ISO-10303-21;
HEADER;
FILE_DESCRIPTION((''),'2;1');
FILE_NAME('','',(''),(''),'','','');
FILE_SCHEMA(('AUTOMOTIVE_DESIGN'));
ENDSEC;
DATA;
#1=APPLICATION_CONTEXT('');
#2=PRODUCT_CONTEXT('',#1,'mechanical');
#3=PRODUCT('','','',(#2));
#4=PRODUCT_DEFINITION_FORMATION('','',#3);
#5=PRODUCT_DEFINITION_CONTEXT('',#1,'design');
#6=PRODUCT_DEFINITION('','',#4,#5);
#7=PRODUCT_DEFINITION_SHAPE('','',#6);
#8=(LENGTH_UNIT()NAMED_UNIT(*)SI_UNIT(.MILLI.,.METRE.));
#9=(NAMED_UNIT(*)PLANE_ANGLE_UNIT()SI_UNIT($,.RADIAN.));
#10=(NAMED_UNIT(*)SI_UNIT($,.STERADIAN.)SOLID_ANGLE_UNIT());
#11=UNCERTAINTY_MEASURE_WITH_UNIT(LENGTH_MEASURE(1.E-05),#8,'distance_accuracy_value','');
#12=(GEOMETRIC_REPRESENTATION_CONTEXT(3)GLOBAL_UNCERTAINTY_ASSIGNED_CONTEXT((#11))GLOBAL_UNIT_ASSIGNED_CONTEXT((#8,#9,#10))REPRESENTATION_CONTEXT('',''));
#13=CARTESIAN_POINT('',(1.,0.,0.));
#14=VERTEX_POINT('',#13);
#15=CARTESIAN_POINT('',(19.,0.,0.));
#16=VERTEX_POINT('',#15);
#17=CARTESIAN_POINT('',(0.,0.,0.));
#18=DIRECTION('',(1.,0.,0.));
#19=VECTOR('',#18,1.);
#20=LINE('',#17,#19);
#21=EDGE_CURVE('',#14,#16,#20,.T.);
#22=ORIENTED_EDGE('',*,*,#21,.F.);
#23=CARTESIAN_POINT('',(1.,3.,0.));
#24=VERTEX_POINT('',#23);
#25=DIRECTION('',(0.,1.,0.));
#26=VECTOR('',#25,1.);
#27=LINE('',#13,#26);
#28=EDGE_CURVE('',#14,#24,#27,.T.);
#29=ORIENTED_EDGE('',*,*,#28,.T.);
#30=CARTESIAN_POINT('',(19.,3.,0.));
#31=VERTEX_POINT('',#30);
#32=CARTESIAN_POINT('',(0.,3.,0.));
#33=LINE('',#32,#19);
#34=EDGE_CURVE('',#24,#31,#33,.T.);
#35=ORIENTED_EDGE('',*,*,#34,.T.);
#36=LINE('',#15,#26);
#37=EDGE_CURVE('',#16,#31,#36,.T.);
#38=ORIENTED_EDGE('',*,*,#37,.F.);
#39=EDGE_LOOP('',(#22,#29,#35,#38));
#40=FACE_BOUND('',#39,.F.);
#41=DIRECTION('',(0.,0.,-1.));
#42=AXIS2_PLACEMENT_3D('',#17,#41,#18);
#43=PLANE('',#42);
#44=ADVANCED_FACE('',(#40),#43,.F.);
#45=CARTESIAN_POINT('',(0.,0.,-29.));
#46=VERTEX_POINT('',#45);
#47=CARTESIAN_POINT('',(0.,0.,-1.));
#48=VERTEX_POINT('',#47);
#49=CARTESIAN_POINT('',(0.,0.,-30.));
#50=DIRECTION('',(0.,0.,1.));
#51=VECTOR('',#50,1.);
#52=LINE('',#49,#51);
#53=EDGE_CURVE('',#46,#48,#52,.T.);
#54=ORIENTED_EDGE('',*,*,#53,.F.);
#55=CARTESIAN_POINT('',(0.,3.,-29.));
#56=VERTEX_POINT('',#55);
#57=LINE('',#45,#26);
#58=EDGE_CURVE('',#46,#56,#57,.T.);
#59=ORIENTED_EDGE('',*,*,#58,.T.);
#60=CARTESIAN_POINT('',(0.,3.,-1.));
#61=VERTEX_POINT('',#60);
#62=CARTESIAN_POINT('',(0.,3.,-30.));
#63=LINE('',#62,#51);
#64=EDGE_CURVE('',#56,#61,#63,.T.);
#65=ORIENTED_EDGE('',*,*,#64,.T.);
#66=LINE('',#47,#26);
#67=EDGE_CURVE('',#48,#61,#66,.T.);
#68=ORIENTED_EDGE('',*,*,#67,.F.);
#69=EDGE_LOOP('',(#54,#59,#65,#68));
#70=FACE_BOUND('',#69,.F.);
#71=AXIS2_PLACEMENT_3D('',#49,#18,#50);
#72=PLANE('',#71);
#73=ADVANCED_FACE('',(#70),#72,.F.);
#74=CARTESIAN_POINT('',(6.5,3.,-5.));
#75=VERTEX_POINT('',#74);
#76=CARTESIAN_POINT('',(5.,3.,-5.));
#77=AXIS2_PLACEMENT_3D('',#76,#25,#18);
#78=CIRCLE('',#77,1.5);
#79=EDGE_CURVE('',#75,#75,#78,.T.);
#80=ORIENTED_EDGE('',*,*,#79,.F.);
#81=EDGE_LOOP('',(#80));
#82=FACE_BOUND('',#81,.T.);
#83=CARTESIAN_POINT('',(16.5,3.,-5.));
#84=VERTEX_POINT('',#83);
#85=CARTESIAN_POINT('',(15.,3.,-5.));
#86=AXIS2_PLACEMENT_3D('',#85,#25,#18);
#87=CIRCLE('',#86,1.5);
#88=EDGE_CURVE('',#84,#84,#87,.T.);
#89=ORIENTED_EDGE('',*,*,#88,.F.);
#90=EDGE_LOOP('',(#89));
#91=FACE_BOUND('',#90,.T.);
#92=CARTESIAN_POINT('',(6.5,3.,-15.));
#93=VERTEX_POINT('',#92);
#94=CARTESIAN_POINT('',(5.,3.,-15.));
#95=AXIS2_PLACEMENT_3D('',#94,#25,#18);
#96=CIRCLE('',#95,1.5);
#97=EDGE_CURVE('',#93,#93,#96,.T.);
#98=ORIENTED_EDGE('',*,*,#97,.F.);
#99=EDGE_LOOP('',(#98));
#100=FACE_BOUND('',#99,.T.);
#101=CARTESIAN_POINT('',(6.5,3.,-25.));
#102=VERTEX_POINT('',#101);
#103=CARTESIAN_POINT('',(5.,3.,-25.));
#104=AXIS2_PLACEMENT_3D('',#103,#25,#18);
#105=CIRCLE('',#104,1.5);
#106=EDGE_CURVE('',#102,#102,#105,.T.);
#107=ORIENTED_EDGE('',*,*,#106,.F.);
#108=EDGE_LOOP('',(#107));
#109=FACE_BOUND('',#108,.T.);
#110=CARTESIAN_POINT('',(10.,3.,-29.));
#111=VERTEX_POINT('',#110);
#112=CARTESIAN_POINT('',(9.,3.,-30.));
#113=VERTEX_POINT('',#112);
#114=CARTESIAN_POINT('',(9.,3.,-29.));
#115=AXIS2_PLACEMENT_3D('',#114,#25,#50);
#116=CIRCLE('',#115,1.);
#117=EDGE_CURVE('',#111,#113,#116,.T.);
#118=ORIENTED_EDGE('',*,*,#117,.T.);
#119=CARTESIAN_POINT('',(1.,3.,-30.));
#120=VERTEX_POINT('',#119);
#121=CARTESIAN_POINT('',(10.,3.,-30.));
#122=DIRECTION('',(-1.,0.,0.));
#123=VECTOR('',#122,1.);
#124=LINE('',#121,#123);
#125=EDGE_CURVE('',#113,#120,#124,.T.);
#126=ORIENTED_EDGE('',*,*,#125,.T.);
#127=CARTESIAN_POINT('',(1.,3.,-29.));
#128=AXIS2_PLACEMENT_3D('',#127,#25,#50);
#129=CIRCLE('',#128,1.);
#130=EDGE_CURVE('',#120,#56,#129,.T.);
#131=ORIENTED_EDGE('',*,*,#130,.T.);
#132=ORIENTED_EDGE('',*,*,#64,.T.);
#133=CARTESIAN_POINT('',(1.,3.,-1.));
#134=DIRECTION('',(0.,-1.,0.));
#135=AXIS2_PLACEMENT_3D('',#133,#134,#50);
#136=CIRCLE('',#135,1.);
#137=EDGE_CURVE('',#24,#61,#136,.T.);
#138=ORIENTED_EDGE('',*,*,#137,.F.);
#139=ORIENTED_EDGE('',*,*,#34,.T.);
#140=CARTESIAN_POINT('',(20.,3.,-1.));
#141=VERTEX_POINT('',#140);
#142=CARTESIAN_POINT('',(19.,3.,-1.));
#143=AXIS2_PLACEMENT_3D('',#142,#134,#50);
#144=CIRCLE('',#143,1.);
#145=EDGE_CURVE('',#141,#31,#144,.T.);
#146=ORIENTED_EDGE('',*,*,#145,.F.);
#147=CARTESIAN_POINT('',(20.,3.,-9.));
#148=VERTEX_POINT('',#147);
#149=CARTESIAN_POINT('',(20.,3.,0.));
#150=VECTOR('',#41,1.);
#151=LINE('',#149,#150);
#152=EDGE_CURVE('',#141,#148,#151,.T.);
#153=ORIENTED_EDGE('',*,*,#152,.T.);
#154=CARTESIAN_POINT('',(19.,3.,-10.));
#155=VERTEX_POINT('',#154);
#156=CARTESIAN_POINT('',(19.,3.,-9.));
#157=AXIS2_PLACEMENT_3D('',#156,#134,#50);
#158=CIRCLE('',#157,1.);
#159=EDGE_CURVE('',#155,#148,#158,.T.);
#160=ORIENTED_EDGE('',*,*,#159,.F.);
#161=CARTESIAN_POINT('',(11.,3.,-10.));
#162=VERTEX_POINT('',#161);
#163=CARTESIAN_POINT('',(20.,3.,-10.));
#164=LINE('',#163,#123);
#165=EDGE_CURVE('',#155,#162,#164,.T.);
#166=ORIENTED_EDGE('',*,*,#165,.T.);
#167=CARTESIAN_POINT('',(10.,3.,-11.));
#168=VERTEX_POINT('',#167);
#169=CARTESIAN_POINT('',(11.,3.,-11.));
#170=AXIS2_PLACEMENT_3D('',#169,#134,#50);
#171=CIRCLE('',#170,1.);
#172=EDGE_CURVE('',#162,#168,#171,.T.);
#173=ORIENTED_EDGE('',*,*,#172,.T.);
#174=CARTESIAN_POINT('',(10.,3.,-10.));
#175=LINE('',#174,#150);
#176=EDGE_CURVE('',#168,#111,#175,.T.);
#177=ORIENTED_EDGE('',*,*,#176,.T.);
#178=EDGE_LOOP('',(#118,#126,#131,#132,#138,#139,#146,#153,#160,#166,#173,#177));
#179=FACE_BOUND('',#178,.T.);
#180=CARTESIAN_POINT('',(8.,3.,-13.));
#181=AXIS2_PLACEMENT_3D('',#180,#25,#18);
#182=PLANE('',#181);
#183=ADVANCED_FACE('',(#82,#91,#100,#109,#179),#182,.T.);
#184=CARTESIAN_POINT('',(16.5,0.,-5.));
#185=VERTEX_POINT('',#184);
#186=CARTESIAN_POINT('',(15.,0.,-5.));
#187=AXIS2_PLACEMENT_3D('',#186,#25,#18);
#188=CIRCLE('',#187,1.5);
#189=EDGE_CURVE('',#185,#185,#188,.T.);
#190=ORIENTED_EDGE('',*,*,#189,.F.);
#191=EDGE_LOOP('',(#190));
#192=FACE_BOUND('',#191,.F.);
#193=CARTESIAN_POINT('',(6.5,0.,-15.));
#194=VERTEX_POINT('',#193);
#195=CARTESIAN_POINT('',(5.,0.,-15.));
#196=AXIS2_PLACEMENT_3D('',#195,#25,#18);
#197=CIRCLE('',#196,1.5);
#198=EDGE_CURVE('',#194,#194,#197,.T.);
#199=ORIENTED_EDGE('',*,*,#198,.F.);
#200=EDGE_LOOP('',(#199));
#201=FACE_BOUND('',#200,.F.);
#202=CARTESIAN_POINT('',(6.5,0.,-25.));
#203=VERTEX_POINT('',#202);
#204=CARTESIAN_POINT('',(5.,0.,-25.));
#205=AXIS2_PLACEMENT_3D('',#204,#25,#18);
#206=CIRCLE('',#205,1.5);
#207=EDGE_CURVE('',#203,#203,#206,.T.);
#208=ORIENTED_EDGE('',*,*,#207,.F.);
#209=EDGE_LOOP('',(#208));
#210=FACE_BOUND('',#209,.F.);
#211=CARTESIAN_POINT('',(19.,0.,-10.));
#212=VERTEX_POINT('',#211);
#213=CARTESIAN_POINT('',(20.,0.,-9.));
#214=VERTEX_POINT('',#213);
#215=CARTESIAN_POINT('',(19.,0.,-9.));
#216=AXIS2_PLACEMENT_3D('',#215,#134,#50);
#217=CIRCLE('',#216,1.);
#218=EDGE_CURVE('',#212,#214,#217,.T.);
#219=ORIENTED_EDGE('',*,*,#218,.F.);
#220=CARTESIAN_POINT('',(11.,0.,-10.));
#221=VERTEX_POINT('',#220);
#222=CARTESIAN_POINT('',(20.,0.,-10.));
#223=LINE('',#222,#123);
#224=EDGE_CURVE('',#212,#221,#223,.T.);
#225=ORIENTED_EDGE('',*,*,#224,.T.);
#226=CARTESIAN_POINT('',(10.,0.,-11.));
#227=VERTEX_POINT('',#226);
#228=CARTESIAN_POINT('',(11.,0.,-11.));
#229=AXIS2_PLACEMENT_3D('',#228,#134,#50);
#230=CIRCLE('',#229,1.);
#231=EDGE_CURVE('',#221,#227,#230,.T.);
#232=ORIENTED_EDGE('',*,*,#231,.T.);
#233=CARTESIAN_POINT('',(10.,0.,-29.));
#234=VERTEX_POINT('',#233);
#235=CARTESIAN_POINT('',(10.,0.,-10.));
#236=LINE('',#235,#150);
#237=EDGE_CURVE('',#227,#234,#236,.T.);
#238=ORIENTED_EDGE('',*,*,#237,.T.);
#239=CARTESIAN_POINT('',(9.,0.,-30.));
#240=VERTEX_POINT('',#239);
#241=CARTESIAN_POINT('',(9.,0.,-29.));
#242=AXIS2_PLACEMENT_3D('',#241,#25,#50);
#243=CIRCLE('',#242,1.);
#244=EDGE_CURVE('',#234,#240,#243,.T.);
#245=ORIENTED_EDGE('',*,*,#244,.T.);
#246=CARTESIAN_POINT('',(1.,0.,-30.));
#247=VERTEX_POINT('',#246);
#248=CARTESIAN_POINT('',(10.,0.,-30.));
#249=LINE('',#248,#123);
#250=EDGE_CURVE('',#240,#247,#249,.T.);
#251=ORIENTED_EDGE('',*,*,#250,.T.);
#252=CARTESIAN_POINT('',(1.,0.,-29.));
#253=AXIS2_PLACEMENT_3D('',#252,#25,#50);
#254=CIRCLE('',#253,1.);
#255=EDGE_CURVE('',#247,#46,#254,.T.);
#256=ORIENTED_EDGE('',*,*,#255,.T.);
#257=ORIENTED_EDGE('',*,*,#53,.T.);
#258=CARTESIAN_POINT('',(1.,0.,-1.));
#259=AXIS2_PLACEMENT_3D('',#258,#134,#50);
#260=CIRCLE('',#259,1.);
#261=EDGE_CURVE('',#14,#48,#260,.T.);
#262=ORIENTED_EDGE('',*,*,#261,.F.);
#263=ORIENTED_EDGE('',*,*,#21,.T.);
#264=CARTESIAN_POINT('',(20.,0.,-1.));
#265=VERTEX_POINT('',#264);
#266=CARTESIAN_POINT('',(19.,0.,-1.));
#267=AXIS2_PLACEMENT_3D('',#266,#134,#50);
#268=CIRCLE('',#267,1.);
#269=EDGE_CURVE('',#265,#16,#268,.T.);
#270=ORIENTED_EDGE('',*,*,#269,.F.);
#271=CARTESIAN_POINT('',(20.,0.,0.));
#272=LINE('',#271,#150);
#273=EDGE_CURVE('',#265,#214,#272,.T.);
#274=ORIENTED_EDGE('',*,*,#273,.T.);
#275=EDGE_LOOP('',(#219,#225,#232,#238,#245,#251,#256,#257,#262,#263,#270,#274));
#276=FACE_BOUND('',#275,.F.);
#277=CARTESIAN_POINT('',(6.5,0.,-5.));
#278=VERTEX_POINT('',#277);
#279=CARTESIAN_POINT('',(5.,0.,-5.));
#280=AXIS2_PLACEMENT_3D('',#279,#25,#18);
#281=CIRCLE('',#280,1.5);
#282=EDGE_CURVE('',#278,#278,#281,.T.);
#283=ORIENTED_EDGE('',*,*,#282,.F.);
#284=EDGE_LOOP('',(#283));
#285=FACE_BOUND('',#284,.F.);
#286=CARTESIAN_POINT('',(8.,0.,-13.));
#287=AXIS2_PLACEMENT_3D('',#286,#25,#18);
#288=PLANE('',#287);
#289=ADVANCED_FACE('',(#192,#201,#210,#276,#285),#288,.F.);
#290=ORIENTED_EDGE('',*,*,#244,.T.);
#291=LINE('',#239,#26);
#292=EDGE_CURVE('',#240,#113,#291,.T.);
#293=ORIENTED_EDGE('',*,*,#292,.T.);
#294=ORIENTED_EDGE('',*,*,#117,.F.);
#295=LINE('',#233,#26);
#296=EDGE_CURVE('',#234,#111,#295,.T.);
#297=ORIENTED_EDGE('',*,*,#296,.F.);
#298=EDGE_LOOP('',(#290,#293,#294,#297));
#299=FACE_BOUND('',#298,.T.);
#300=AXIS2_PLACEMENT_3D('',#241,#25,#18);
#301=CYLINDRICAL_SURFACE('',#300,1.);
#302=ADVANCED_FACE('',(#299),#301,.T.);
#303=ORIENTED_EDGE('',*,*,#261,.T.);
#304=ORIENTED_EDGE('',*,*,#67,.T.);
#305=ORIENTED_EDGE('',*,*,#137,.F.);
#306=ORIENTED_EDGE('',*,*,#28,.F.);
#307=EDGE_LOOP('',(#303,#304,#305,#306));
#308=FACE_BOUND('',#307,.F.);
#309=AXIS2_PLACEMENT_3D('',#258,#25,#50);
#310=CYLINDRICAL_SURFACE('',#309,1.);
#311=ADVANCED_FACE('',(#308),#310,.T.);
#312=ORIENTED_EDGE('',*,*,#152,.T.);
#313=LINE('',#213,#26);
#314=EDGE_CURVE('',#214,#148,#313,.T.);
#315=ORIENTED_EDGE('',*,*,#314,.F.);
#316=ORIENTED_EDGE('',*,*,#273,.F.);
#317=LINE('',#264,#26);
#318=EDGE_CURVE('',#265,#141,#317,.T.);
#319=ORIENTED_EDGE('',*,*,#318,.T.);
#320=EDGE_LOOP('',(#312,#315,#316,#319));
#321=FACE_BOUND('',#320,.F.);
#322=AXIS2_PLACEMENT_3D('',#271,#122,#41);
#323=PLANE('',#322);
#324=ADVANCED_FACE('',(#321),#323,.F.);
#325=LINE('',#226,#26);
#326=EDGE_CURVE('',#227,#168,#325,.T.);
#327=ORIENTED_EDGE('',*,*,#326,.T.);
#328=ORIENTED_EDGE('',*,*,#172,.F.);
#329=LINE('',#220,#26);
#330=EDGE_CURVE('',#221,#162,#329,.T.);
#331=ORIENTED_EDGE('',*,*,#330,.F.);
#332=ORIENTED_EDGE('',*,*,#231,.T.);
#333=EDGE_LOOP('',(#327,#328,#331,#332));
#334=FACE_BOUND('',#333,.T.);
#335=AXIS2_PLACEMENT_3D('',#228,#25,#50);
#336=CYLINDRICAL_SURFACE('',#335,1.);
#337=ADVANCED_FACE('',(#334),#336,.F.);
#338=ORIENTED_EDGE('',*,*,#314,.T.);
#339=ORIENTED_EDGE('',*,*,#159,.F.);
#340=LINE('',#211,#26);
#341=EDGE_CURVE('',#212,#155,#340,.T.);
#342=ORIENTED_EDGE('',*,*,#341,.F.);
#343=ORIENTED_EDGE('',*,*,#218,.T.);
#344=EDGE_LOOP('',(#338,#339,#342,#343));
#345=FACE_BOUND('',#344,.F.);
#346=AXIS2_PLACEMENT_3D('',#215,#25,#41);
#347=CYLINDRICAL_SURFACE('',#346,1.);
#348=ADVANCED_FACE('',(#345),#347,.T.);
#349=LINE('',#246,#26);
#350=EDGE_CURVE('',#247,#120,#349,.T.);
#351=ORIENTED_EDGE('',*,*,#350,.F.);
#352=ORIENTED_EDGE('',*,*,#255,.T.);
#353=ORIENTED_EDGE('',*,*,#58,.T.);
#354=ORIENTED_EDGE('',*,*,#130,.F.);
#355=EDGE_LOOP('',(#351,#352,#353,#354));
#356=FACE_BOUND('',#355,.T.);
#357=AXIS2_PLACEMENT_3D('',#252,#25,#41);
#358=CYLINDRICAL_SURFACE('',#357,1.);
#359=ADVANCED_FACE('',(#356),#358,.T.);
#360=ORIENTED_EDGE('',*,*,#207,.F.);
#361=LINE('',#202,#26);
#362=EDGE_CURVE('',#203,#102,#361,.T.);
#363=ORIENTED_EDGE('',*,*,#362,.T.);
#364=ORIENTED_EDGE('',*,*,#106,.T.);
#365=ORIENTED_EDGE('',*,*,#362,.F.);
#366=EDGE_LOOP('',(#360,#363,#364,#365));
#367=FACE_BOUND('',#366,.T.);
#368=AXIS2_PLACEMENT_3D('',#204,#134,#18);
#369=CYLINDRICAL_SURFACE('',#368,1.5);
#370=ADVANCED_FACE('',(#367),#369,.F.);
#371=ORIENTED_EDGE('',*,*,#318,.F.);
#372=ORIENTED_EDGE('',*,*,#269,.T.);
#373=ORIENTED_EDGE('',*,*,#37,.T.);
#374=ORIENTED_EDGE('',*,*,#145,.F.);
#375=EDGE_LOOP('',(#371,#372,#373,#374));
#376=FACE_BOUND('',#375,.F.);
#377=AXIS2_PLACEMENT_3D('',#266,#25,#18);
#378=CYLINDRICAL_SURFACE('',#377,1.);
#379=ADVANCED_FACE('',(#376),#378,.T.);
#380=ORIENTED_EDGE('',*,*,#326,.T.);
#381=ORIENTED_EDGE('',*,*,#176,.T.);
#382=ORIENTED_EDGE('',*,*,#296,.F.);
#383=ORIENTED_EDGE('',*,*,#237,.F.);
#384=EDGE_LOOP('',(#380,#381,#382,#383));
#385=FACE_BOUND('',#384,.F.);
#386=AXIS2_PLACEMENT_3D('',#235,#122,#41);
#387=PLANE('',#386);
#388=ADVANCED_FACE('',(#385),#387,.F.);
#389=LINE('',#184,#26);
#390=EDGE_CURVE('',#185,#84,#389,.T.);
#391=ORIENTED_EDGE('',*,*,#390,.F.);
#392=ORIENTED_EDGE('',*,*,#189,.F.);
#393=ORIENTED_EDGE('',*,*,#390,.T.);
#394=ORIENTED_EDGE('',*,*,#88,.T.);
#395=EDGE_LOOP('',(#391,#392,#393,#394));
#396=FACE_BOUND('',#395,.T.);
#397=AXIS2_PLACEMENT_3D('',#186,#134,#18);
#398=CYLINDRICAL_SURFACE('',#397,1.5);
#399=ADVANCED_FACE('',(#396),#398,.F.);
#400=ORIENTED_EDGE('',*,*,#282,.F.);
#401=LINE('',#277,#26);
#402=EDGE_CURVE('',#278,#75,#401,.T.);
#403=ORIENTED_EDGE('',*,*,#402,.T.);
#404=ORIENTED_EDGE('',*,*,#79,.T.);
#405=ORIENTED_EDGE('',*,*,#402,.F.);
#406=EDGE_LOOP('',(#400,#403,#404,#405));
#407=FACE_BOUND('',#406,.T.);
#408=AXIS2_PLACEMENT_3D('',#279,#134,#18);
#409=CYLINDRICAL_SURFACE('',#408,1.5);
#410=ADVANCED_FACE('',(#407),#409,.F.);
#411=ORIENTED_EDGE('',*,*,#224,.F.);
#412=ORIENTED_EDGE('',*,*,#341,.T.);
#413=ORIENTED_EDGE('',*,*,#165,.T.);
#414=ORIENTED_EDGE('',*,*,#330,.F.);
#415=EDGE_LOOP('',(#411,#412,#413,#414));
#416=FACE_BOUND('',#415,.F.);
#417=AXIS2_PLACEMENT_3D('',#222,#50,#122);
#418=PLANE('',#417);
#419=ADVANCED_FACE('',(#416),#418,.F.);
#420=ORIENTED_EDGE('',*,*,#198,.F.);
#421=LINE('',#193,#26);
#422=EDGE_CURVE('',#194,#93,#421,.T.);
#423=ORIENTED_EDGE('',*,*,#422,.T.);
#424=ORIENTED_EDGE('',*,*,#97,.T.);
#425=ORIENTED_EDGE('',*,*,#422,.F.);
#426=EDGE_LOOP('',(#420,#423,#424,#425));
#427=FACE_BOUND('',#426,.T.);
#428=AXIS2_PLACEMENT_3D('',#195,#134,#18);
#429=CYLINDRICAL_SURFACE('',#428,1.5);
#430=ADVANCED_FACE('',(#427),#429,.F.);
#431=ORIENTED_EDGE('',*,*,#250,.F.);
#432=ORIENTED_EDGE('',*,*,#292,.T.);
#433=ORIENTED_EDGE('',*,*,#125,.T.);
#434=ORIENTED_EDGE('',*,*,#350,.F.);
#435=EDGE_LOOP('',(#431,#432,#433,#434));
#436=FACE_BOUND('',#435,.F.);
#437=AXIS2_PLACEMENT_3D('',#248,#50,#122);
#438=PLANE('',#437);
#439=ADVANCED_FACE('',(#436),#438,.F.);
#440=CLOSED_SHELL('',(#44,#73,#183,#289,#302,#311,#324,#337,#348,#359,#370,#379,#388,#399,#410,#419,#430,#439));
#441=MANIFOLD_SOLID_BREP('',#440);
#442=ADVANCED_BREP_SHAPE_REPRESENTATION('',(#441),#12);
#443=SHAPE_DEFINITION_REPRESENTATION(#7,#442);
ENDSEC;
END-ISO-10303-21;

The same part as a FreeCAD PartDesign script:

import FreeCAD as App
import Part
import Sketcher
from FreeCAD import Vector
Q = App.Units.Quantity


def edges_at(feature, points):
    """Names of the edges that pass closest to the given points."""
    edges = feature.Shape.Edges
    near = lambda p: min(range(len(edges)), key=lambda i: edges[i].distToShape(Part.Vertex(*p))[0])
    return sorted({f"Edge{near(p) + 1}" for p in points})

doc = App.newDocument("Part")
body = doc.addObject("PartDesign::Body", "Body")

sketch1 = body.newObject("Sketcher::SketchObject", "Sketch")
sketch1.AttachmentSupport = (doc.getObject("XZ_Plane"), [""])
sketch1.MapMode = "FlatFace"
sketch1.addGeometry(Part.LineSegment(Vector(0, 0, 0), Vector(20, 0, 0)), False)
sketch1.addGeometry(Part.LineSegment(Vector(20, 0, 0), Vector(20, -10, 0)), False)
sketch1.addGeometry(Part.LineSegment(Vector(20, -10, 0), Vector(10, -10, 0)), False)
sketch1.addGeometry(Part.LineSegment(Vector(10, -10, 0), Vector(10, -30, 0)), False)
sketch1.addGeometry(Part.LineSegment(Vector(10, -30, 0), Vector(0, -30, 0)), False)
sketch1.addGeometry(Part.LineSegment(Vector(0, -30, 0), Vector(0, 0, 0)), False)
sketch1.addGeometry(Part.Circle(Vector(5, -5, 0), Vector(0, 0, 1), 1.5), False)
sketch1.addGeometry(Part.Circle(Vector(15, -5, 0), Vector(0, 0, 1), 1.5), False)
sketch1.addGeometry(Part.Circle(Vector(5, -15, 0), Vector(0, 0, 1), 1.5), False)
sketch1.addGeometry(Part.Circle(Vector(5, -25, 0), Vector(0, 0, 1), 1.5), False)
sketch1.addConstraint(Sketcher.Constraint("Coincident", 0, 2, 1, 1))
sketch1.addConstraint(Sketcher.Constraint("Coincident", 1, 2, 2, 1))
sketch1.addConstraint(Sketcher.Constraint("Coincident", 2, 2, 3, 1))
sketch1.addConstraint(Sketcher.Constraint("Coincident", 3, 2, 4, 1))
sketch1.addConstraint(Sketcher.Constraint("Coincident", 4, 2, 5, 1))
sketch1.addConstraint(Sketcher.Constraint("Coincident", 5, 2, 0, 1))
sketch1.addConstraint(Sketcher.Constraint("Horizontal", 0))
sketch1.addConstraint(Sketcher.Constraint("Vertical", 1))
sketch1.addConstraint(Sketcher.Constraint("Horizontal", 2))
sketch1.addConstraint(Sketcher.Constraint("Vertical", 3))
sketch1.addConstraint(Sketcher.Constraint("Horizontal", 4))
sketch1.addConstraint(Sketcher.Constraint("Vertical", 5))
sketch1.addConstraint(Sketcher.Constraint("Coincident", 5, 2, -1, 1))
sketch1.addConstraint(Sketcher.Constraint("Equal", 6, 7))
sketch1.addConstraint(Sketcher.Constraint("Equal", 7, 8))
sketch1.addConstraint(Sketcher.Constraint("Equal", 8, 9))
sketch1.addConstraint(Sketcher.Constraint("Horizontal", 6, 3, 7, 3))
sketch1.addConstraint(Sketcher.Constraint("Vertical", 6, 3, 8, 3))
sketch1.addConstraint(Sketcher.Constraint("Vertical", 8, 3, 9, 3))
sketch1.addConstraint(Sketcher.Constraint("Equal", 2, 4))
sketch1.addConstraint(Sketcher.Constraint("Equal", 4, 1))
sketch1.addConstraint(Sketcher.Constraint("Equal", 0, 3))
sketch1.addConstraint(Sketcher.Constraint("Diameter", 6, Q("3 mm")))
sketch1.addConstraint(Sketcher.Constraint("DistanceX", 0, 1, 0, 2, Q("20 mm")))
sketch1.addConstraint(Sketcher.Constraint("DistanceX", -1, 1, 6, 3, Q("5 mm")))
sketch1.addConstraint(Sketcher.Constraint("DistanceY", 6, 3, -1, 1, Q("5 mm")))
sketch1.addConstraint(Sketcher.Constraint("DistanceX", -1, 1, 7, 3, Q("15 mm")))
sketch1.addConstraint(Sketcher.Constraint("DistanceY", 8, 3, -1, 1, Q("15 mm")))
sketch1.addConstraint(Sketcher.Constraint("DistanceY", 9, 3, -1, 1, Q("25 mm")))
pad1 = body.newObject("PartDesign::Pad", "Pad")
pad1.Profile = sketch1
pad1.Length = 3
pad1.Reversed = True
doc.recompute()

fillet = body.newObject("PartDesign::Fillet", "Fillet")
fillet.Base = (pad1, edges_at(pad1, [(10, 1.5, -10)]))
fillet.Radius = 1
doc.recompute()

fillet2 = body.newObject("PartDesign::Fillet", "Fillet001")
fillet2.Base = (fillet, edges_at(fillet, [
    (0, 1.5, -30),
    (10, 1.5, -30),
    (20, 1.5, -10),
    (20, 1.5, 0),
    (0, 1.5, 0),
]))
fillet2.Radius = 1

doc.recompute()
